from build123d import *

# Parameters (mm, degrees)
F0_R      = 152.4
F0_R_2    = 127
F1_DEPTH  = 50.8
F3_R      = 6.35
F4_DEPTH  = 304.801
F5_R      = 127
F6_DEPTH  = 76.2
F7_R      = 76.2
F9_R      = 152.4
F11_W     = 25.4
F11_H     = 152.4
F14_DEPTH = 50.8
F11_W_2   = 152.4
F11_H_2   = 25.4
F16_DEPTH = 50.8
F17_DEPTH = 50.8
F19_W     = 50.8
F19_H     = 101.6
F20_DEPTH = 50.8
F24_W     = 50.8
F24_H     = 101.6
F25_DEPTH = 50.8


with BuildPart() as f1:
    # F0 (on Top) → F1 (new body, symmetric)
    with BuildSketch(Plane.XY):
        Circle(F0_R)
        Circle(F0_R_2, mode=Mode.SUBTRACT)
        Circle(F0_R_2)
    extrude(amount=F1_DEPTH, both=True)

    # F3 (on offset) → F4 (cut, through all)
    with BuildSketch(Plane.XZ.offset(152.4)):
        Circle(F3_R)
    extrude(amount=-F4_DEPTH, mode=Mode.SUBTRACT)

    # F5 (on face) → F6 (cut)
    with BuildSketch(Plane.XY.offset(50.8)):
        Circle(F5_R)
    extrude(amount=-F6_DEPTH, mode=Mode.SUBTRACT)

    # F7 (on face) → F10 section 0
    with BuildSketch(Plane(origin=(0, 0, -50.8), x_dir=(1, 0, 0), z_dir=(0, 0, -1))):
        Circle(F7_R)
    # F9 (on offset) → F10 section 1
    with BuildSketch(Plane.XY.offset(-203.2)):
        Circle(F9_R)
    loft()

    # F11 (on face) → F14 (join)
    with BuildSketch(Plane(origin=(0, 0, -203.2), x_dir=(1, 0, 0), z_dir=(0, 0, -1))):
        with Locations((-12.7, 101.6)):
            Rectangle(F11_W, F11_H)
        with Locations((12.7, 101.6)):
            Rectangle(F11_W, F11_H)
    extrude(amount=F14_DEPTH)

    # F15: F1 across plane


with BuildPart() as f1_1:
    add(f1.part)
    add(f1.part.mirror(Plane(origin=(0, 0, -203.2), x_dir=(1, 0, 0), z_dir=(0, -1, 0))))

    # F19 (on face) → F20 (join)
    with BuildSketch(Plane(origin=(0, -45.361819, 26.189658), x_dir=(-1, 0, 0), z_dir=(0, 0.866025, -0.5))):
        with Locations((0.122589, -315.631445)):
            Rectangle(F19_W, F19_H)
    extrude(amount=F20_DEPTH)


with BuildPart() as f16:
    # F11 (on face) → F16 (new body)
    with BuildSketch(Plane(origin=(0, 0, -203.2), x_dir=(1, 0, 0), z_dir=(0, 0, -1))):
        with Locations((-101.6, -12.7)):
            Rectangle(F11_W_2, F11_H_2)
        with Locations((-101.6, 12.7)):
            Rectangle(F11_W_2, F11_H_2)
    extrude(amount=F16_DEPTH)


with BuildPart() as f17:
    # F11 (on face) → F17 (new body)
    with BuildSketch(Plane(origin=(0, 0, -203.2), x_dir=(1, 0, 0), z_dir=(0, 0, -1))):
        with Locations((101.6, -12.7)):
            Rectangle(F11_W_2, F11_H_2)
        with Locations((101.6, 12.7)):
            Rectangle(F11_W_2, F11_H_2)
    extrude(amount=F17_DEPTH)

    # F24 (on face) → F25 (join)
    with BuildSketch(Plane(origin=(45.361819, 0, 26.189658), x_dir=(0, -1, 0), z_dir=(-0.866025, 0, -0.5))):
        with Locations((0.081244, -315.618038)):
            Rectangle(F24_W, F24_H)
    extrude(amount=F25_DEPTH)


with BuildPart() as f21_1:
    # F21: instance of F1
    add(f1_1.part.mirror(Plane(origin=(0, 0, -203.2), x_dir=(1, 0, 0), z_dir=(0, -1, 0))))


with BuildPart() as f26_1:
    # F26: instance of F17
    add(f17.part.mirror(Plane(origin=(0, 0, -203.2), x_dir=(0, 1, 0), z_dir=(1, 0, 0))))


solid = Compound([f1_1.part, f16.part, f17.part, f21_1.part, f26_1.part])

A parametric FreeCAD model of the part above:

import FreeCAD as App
import Part
import Sketcher
Q = App.Units.Quantity

doc = App.newDocument("Part")
body = doc.addObject("PartDesign::Body", "Body")

# Sketch on XY plane
sketch1 = doc.addObject("Sketcher::SketchObject", "Sketch")
body.addObject(sketch1)
sketch1.AttachmentSupport = (doc.XY_Plane, [""])
sketch1.MapMode = "FlatFace"
sketch1.addGeometry(Part.Circle(App.Vector(0, 0, 0), App.Vector(0, 0, 1), 152), False)
sketch1.addConstraint(Sketcher.Constraint("Coincident", 0, 3, -1, 1))
sketch1.addConstraint(Sketcher.Constraint("Diameter", 0, Q("12 in")))
pad1 = doc.addObject("PartDesign::Pad", "Pad")
body.addObject(pad1)
pad1.Profile = sketch1
pad1.Length = Q("4 in")
pad1.Midplane = True

# Sketch on XZ plane
sketch2 = doc.addObject("Sketcher::SketchObject", "Sketch001")
body.addObject(sketch2)
sketch2.AttachmentSupport = (doc.XZ_Plane, [""])
sketch2.MapMode = "FlatFace"
sketch2.AttachmentOffset = App.Placement(App.Vector(0, 0, 6 * 25.4), App.Rotation())
sketch2.addGeometry(Part.Circle(App.Vector(0, 0, 0), App.Vector(0, 0, 1), 6), False)
sketch2.addConstraint(Sketcher.Constraint("Coincident", 0, 3, -1, 1))
sketch2.addConstraint(Sketcher.Constraint("Diameter", 0, Q("0.5 in")))
pocket1 = doc.addObject("PartDesign::Pocket", "Pocket")
body.addObject(pocket1)
pocket1.Profile = sketch2
pocket1.Type = "ThroughAll"

# Sketch on XY plane
sketch3 = doc.addObject("Sketcher::SketchObject", "Sketch002")
body.addObject(sketch3)
sketch3.AttachmentSupport = (doc.XY_Plane, [""])
sketch3.MapMode = "FlatFace"
sketch3.AttachmentOffset = App.Placement(App.Vector(0, 0, 2 * 25.4), App.Rotation())
sketch3.addGeometry(Part.Circle(App.Vector(0, 0, 0), App.Vector(0, 0, 1), 127), False)
sketch3.addConstraint(Sketcher.Constraint("Coincident", 0, 3, -1, 1))
sketch3.addConstraint(Sketcher.Constraint("Diameter", 0, Q("10 in")))
pocket2 = doc.addObject("PartDesign::Pocket", "Pocket001")
body.addObject(pocket2)
pocket2.Profile = sketch3
pocket2.Length = Q("3 in")

# Sketch on XY plane
sketch4 = doc.addObject("Sketcher::SketchObject", "Sketch003")
body.addObject(sketch4)
sketch4.AttachmentSupport = (doc.XY_Plane, [""])
sketch4.MapMode = "FlatFace"
sketch4.AttachmentOffset = App.Placement(App.Vector(0, 0, -2 * 25.4), App.Rotation())
sketch4.addGeometry(Part.Circle(App.Vector(0, 0, 0), App.Vector(0, 0, 1), 76), False)
sketch4.addConstraint(Sketcher.Constraint("Coincident", 0, 3, -1, 1))
sketch4.addConstraint(Sketcher.Constraint("Diameter", 0, Q("6 in")))

# Sketch on XY plane
sketch5 = doc.addObject("Sketcher::SketchObject", "Sketch004")
body.addObject(sketch5)
sketch5.AttachmentSupport = (doc.XY_Plane, [""])
sketch5.MapMode = "FlatFace"
sketch5.AttachmentOffset = App.Placement(App.Vector(0, 0, -8 * 25.4), App.Rotation())
sketch5.addGeometry(Part.Circle(App.Vector(0, 0, 0), App.Vector(0, 0, 1), 152), False)
sketch5.addConstraint(Sketcher.Constraint("Coincident", 0, 3, -1, 1))
sketch5.addConstraint(Sketcher.Constraint("Diameter", 0, Q("12 in")))

additiveloft = doc.addObject("PartDesign::AdditiveLoft", "AdditiveLoft")
body.addObject(additiveloft)
additiveloft.Profile = sketch4
additiveloft.Sections = [sketch5]

# Sketch on XY plane
sketch6 = doc.addObject("Sketcher::SketchObject", "Sketch005")
body.addObject(sketch6)
sketch6.AttachmentSupport = (doc.XY_Plane, [""])
sketch6.MapMode = "FlatFace"
sketch6.AttachmentOffset = App.Placement(App.Vector(0, 0, -8 * 25.4), App.Rotation())
sketch6.addGeometry(Part.LineSegment(App.Vector(-25, -178, 0), App.Vector(-25, -25, 0)), False)
sketch6.addGeometry(Part.LineSegment(App.Vector(-25, -25, 0), App.Vector(25, -25, 0)), False)
sketch6.addGeometry(Part.LineSegment(App.Vector(25, -25, 0), App.Vector(25, -178, 0)), False)
sketch6.addGeometry(Part.LineSegment(App.Vector(25, -178, 0), App.Vector(-25, -178, 0)), False)
sketch6.addConstraint(Sketcher.Constraint("Coincident", 0, 2, 1, 1))
sketch6.addConstraint(Sketcher.Constraint("Coincident", 1, 2, 2, 1))
sketch6.addConstraint(Sketcher.Constraint("Coincident", 2, 2, 3, 1))
sketch6.addConstraint(Sketcher.Constraint("Coincident", 3, 2, 0, 1))
sketch6.addConstraint(Sketcher.Constraint("Vertical", 0))
sketch6.addConstraint(Sketcher.Constraint("Horizontal", 1))
sketch6.addConstraint(Sketcher.Constraint("Vertical", 2))
sketch6.addConstraint(Sketcher.Constraint("Horizontal", 3))
sketch6.addConstraint(Sketcher.Constraint("DistanceX", 1, 1, 1, 2, Q("2 in")))
sketch6.addConstraint(Sketcher.Constraint("DistanceY", 0, 1, 0, 2, Q("6 in")))
sketch6.addConstraint(Sketcher.Constraint("DistanceX", 0, 2, -1, 1, Q("1 in")))
sketch6.addConstraint(Sketcher.Constraint("DistanceY", 0, 2, -1, 1, Q("1 in")))
pad2 = doc.addObject("PartDesign::Pad", "Pad001")
body.addObject(pad2)
pad2.Profile = sketch6
pad2.Length = Q("2 in")
pad2.Reversed = True
body2 = doc.addObject("PartDesign::Body", "Body001")
doc.recompute()

body2.BaseFeature = body
doc.recompute()

mirroring = doc.addObject("Part::Mirroring", "Mirroring")
mirroring.Source = body
mirroring.Base = App.Vector(0, 0, -203.2)
mirroring.Normal = App.Vector(0, -1, 0)
body3 = doc.addObject("PartDesign::Body", "Body002")
body3.BaseFeature = mirroring
boolean = doc.addObject("PartDesign::Boolean", "Boolean")
body2.addObject(boolean)
boolean.Type = "Fuse"
boolean.addObjects([body3])
doc.recompute()

# Sketch on an angled plane
sketch7 = doc.addObject("Sketcher::SketchObject", "Sketch006")
body2.addObject(sketch7)
sketch7.Placement = App.Placement(App.Vector(0, -45.361819, 26.189658), App.Rotation(App.Vector(-1, 0, 0), App.Vector(0, 0.500000175, 0.866025303), App.Vector(0, 0.866025303, -0.500000175), "ZXY"))
sketch7.addGeometry(Part.LineSegment(App.Vector(-25, -265, 0), App.Vector(-25, -366, 0)), False)
sketch7.addGeometry(Part.LineSegment(App.Vector(-25, -366, 0), App.Vector(26, -366, 0)), False)
sketch7.addGeometry(Part.LineSegment(App.Vector(26, -366, 0), App.Vector(26, -265, 0)), False)
sketch7.addGeometry(Part.LineSegment(App.Vector(26, -265, 0), App.Vector(-25, -265, 0)), False)
sketch7.addConstraint(Sketcher.Constraint("Coincident", 0, 2, 1, 1))
sketch7.addConstraint(Sketcher.Constraint("Coincident", 1, 2, 2, 1))
sketch7.addConstraint(Sketcher.Constraint("Coincident", 2, 2, 3, 1))
sketch7.addConstraint(Sketcher.Constraint("Coincident", 3, 2, 0, 1))
sketch7.addConstraint(Sketcher.Constraint("Vertical", 0))
sketch7.addConstraint(Sketcher.Constraint("Horizontal", 1))
sketch7.addConstraint(Sketcher.Constraint("Vertical", 2))
sketch7.addConstraint(Sketcher.Constraint("Horizontal", 3))
sketch7.addConstraint(Sketcher.Constraint("DistanceX", 1, 1, 1, 2, Q("2 in")))
sketch7.addConstraint(Sketcher.Constraint("DistanceY", 0, 2, 0, 1, Q("4 in")))
sketch7.addConstraint(Sketcher.Constraint("DistanceX", 0, 2, -1, 1, 25.277411))
sketch7.addConstraint(Sketcher.Constraint("DistanceY", 0, 2, -1, 1, 366.431445))
pad3 = doc.addObject("PartDesign::Pad", "Pad002")
body2.addObject(pad3)
pad3.Profile = sketch7
pad3.Length = Q("2 in")
body4 = doc.addObject("PartDesign::Body", "Body003")

# Sketch on XY plane
sketch8 = doc.addObject("Sketcher::SketchObject", "Sketch007")
body4.addObject(sketch8)
sketch8.AttachmentSupport = (doc.getObject("XY_Plane003"), [""])
sketch8.MapMode = "FlatFace"
sketch8.AttachmentOffset = App.Placement(App.Vector(0, 0, -8 * 25.4), App.Rotation())
sketch8.addGeometry(Part.LineSegment(App.Vector(-178, 25, 0), App.Vector(-25, 25, 0)), False)
sketch8.addGeometry(Part.LineSegment(App.Vector(-25, 25, 0), App.Vector(-25, -25, 0)), False)
sketch8.addGeometry(Part.LineSegment(App.Vector(-25, -25, 0), App.Vector(-178, -25, 0)), False)
sketch8.addGeometry(Part.LineSegment(App.Vector(-178, -25, 0), App.Vector(-178, 25, 0)), False)
sketch8.addConstraint(Sketcher.Constraint("Coincident", 0, 2, 1, 1))
sketch8.addConstraint(Sketcher.Constraint("Coincident", 1, 2, 2, 1))
sketch8.addConstraint(Sketcher.Constraint("Coincident", 2, 2, 3, 1))
sketch8.addConstraint(Sketcher.Constraint("Coincident", 3, 2, 0, 1))
sketch8.addConstraint(Sketcher.Constraint("Horizontal", 0))
sketch8.addConstraint(Sketcher.Constraint("Vertical", 1))
sketch8.addConstraint(Sketcher.Constraint("Horizontal", 2))
sketch8.addConstraint(Sketcher.Constraint("Vertical", 3))
sketch8.addConstraint(Sketcher.Constraint("DistanceX", 0, 1, 0, 2, Q("6 in")))
sketch8.addConstraint(Sketcher.Constraint("DistanceY", 1, 2, 1, 1, Q("2 in")))
sketch8.addConstraint(Sketcher.Constraint("DistanceX", 0, 2, -1, 1, Q("1 in")))
sketch8.addConstraint(Sketcher.Constraint("DistanceY", -1, 1, 0, 2, Q("1 in")))
pad4 = doc.addObject("PartDesign::Pad", "Pad003")
body4.addObject(pad4)
pad4.Profile = sketch8
pad4.Length = Q("2 in")
pad4.Reversed = True
body5 = doc.addObject("PartDesign::Body", "Body004")

# Sketch on XY plane
sketch9 = doc.addObject("Sketcher::SketchObject", "Sketch008")
body5.addObject(sketch9)
sketch9.AttachmentSupport = (doc.getObject("XY_Plane004"), [""])
sketch9.MapMode = "FlatFace"
sketch9.AttachmentOffset = App.Placement(App.Vector(0, 0, -8 * 25.4), App.Rotation())
sketch9.addGeometry(Part.LineSegment(App.Vector(25, 25, 0), App.Vector(178, 25, 0)), False)
sketch9.addGeometry(Part.LineSegment(App.Vector(178, 25, 0), App.Vector(178, -25, 0)), False)
sketch9.addGeometry(Part.LineSegment(App.Vector(178, -25, 0), App.Vector(25, -25, 0)), False)
sketch9.addGeometry(Part.LineSegment(App.Vector(25, -25, 0), App.Vector(25, 25, 0)), False)
sketch9.addConstraint(Sketcher.Constraint("Coincident", 0, 2, 1, 1))
sketch9.addConstraint(Sketcher.Constraint("Coincident", 1, 2, 2, 1))
sketch9.addConstraint(Sketcher.Constraint("Coincident", 2, 2, 3, 1))
sketch9.addConstraint(Sketcher.Constraint("Coincident", 3, 2, 0, 1))
sketch9.addConstraint(Sketcher.Constraint("Horizontal", 0))
sketch9.addConstraint(Sketcher.Constraint("Vertical", 1))
sketch9.addConstraint(Sketcher.Constraint("Horizontal", 2))
sketch9.addConstraint(Sketcher.Constraint("Vertical", 3))
sketch9.addConstraint(Sketcher.Constraint("DistanceX", 0, 1, 0, 2, Q("6 in")))
sketch9.addConstraint(Sketcher.Constraint("DistanceY", 1, 2, 1, 1, Q("2 in")))
sketch9.addConstraint(Sketcher.Constraint("DistanceX", -1, 1, 0, 2, Q("7 in")))
sketch9.addConstraint(Sketcher.Constraint("DistanceY", -1, 1, 0, 2, Q("1 in")))
pad5 = doc.addObject("PartDesign::Pad", "Pad004")
body5.addObject(pad5)
pad5.Profile = sketch9
pad5.Length = Q("2 in")
pad5.Reversed = True

# Sketch on an angled plane
sketch10 = doc.addObject("Sketcher::SketchObject", "Sketch009")
body5.addObject(sketch10)
sketch10.Placement = App.Placement(App.Vector(45.361819, 0, 26.189658), App.Rotation(App.Vector(0, -1, 0), App.Vector(-0.500000175, 0, 0.866025303), App.Vector(-0.866025303, 0, -0.500000175), "ZXY"))
sketch10.addGeometry(Part.LineSegment(App.Vector(-25, -265, 0), App.Vector(-25, -366, 0)), False)
sketch10.addGeometry(Part.LineSegment(App.Vector(-25, -366, 0), App.Vector(25, -366, 0)), False)
sketch10.addGeometry(Part.LineSegment(App.Vector(25, -366, 0), App.Vector(25, -265, 0)), False)
sketch10.addGeometry(Part.LineSegment(App.Vector(25, -265, 0), App.Vector(-25, -265, 0)), False)
sketch10.addConstraint(Sketcher.Constraint("Coincident", 0, 2, 1, 1))
sketch10.addConstraint(Sketcher.Constraint("Coincident", 1, 2, 2, 1))
sketch10.addConstraint(Sketcher.Constraint("Coincident", 2, 2, 3, 1))
sketch10.addConstraint(Sketcher.Constraint("Coincident", 3, 2, 0, 1))
sketch10.addConstraint(Sketcher.Constraint("Vertical", 0))
sketch10.addConstraint(Sketcher.Constraint("Horizontal", 1))
sketch10.addConstraint(Sketcher.Constraint("Vertical", 2))
sketch10.addConstraint(Sketcher.Constraint("Horizontal", 3))
sketch10.addConstraint(Sketcher.Constraint("DistanceX", 1, 1, 1, 2, Q("2 in")))
sketch10.addConstraint(Sketcher.Constraint("DistanceY", 0, 2, 0, 1, Q("4 in")))
sketch10.addConstraint(Sketcher.Constraint("DistanceY", 0, 2, -1, 1, 366.418038))
sketch10.addConstraint(Sketcher.Constraint("DistanceX", 0, 2, -1, 1, 25.318756))
pad6 = doc.addObject("PartDesign::Pad", "Pad005")
body5.addObject(pad6)
pad6.Profile = sketch10
pad6.Length = Q("2 in")
body6 = doc.addObject("PartDesign::Body", "Body005")
doc.recompute()

mirroring2 = doc.addObject("Part::Mirroring", "Mirroring001")
mirroring2.Source = body2
mirroring2.Base = App.Vector(0, 0, -203.2)
mirroring2.Normal = App.Vector(0, -1, 0)
body6.BaseFeature = mirroring2
doc.recompute()
body7 = doc.addObject("PartDesign::Body", "Body006")
doc.recompute()

mirroring3 = doc.addObject("Part::Mirroring", "Mirroring002")
mirroring3.Source = body5
mirroring3.Base = App.Vector(0, 0, -203.2)
mirroring3.Normal = App.Vector(1, 0, 0)
body7.BaseFeature = mirroring3
doc.recompute()
mirroring.Visibility = False
mirroring2.Visibility = False
mirroring3.Visibility = False

doc.recompute()
